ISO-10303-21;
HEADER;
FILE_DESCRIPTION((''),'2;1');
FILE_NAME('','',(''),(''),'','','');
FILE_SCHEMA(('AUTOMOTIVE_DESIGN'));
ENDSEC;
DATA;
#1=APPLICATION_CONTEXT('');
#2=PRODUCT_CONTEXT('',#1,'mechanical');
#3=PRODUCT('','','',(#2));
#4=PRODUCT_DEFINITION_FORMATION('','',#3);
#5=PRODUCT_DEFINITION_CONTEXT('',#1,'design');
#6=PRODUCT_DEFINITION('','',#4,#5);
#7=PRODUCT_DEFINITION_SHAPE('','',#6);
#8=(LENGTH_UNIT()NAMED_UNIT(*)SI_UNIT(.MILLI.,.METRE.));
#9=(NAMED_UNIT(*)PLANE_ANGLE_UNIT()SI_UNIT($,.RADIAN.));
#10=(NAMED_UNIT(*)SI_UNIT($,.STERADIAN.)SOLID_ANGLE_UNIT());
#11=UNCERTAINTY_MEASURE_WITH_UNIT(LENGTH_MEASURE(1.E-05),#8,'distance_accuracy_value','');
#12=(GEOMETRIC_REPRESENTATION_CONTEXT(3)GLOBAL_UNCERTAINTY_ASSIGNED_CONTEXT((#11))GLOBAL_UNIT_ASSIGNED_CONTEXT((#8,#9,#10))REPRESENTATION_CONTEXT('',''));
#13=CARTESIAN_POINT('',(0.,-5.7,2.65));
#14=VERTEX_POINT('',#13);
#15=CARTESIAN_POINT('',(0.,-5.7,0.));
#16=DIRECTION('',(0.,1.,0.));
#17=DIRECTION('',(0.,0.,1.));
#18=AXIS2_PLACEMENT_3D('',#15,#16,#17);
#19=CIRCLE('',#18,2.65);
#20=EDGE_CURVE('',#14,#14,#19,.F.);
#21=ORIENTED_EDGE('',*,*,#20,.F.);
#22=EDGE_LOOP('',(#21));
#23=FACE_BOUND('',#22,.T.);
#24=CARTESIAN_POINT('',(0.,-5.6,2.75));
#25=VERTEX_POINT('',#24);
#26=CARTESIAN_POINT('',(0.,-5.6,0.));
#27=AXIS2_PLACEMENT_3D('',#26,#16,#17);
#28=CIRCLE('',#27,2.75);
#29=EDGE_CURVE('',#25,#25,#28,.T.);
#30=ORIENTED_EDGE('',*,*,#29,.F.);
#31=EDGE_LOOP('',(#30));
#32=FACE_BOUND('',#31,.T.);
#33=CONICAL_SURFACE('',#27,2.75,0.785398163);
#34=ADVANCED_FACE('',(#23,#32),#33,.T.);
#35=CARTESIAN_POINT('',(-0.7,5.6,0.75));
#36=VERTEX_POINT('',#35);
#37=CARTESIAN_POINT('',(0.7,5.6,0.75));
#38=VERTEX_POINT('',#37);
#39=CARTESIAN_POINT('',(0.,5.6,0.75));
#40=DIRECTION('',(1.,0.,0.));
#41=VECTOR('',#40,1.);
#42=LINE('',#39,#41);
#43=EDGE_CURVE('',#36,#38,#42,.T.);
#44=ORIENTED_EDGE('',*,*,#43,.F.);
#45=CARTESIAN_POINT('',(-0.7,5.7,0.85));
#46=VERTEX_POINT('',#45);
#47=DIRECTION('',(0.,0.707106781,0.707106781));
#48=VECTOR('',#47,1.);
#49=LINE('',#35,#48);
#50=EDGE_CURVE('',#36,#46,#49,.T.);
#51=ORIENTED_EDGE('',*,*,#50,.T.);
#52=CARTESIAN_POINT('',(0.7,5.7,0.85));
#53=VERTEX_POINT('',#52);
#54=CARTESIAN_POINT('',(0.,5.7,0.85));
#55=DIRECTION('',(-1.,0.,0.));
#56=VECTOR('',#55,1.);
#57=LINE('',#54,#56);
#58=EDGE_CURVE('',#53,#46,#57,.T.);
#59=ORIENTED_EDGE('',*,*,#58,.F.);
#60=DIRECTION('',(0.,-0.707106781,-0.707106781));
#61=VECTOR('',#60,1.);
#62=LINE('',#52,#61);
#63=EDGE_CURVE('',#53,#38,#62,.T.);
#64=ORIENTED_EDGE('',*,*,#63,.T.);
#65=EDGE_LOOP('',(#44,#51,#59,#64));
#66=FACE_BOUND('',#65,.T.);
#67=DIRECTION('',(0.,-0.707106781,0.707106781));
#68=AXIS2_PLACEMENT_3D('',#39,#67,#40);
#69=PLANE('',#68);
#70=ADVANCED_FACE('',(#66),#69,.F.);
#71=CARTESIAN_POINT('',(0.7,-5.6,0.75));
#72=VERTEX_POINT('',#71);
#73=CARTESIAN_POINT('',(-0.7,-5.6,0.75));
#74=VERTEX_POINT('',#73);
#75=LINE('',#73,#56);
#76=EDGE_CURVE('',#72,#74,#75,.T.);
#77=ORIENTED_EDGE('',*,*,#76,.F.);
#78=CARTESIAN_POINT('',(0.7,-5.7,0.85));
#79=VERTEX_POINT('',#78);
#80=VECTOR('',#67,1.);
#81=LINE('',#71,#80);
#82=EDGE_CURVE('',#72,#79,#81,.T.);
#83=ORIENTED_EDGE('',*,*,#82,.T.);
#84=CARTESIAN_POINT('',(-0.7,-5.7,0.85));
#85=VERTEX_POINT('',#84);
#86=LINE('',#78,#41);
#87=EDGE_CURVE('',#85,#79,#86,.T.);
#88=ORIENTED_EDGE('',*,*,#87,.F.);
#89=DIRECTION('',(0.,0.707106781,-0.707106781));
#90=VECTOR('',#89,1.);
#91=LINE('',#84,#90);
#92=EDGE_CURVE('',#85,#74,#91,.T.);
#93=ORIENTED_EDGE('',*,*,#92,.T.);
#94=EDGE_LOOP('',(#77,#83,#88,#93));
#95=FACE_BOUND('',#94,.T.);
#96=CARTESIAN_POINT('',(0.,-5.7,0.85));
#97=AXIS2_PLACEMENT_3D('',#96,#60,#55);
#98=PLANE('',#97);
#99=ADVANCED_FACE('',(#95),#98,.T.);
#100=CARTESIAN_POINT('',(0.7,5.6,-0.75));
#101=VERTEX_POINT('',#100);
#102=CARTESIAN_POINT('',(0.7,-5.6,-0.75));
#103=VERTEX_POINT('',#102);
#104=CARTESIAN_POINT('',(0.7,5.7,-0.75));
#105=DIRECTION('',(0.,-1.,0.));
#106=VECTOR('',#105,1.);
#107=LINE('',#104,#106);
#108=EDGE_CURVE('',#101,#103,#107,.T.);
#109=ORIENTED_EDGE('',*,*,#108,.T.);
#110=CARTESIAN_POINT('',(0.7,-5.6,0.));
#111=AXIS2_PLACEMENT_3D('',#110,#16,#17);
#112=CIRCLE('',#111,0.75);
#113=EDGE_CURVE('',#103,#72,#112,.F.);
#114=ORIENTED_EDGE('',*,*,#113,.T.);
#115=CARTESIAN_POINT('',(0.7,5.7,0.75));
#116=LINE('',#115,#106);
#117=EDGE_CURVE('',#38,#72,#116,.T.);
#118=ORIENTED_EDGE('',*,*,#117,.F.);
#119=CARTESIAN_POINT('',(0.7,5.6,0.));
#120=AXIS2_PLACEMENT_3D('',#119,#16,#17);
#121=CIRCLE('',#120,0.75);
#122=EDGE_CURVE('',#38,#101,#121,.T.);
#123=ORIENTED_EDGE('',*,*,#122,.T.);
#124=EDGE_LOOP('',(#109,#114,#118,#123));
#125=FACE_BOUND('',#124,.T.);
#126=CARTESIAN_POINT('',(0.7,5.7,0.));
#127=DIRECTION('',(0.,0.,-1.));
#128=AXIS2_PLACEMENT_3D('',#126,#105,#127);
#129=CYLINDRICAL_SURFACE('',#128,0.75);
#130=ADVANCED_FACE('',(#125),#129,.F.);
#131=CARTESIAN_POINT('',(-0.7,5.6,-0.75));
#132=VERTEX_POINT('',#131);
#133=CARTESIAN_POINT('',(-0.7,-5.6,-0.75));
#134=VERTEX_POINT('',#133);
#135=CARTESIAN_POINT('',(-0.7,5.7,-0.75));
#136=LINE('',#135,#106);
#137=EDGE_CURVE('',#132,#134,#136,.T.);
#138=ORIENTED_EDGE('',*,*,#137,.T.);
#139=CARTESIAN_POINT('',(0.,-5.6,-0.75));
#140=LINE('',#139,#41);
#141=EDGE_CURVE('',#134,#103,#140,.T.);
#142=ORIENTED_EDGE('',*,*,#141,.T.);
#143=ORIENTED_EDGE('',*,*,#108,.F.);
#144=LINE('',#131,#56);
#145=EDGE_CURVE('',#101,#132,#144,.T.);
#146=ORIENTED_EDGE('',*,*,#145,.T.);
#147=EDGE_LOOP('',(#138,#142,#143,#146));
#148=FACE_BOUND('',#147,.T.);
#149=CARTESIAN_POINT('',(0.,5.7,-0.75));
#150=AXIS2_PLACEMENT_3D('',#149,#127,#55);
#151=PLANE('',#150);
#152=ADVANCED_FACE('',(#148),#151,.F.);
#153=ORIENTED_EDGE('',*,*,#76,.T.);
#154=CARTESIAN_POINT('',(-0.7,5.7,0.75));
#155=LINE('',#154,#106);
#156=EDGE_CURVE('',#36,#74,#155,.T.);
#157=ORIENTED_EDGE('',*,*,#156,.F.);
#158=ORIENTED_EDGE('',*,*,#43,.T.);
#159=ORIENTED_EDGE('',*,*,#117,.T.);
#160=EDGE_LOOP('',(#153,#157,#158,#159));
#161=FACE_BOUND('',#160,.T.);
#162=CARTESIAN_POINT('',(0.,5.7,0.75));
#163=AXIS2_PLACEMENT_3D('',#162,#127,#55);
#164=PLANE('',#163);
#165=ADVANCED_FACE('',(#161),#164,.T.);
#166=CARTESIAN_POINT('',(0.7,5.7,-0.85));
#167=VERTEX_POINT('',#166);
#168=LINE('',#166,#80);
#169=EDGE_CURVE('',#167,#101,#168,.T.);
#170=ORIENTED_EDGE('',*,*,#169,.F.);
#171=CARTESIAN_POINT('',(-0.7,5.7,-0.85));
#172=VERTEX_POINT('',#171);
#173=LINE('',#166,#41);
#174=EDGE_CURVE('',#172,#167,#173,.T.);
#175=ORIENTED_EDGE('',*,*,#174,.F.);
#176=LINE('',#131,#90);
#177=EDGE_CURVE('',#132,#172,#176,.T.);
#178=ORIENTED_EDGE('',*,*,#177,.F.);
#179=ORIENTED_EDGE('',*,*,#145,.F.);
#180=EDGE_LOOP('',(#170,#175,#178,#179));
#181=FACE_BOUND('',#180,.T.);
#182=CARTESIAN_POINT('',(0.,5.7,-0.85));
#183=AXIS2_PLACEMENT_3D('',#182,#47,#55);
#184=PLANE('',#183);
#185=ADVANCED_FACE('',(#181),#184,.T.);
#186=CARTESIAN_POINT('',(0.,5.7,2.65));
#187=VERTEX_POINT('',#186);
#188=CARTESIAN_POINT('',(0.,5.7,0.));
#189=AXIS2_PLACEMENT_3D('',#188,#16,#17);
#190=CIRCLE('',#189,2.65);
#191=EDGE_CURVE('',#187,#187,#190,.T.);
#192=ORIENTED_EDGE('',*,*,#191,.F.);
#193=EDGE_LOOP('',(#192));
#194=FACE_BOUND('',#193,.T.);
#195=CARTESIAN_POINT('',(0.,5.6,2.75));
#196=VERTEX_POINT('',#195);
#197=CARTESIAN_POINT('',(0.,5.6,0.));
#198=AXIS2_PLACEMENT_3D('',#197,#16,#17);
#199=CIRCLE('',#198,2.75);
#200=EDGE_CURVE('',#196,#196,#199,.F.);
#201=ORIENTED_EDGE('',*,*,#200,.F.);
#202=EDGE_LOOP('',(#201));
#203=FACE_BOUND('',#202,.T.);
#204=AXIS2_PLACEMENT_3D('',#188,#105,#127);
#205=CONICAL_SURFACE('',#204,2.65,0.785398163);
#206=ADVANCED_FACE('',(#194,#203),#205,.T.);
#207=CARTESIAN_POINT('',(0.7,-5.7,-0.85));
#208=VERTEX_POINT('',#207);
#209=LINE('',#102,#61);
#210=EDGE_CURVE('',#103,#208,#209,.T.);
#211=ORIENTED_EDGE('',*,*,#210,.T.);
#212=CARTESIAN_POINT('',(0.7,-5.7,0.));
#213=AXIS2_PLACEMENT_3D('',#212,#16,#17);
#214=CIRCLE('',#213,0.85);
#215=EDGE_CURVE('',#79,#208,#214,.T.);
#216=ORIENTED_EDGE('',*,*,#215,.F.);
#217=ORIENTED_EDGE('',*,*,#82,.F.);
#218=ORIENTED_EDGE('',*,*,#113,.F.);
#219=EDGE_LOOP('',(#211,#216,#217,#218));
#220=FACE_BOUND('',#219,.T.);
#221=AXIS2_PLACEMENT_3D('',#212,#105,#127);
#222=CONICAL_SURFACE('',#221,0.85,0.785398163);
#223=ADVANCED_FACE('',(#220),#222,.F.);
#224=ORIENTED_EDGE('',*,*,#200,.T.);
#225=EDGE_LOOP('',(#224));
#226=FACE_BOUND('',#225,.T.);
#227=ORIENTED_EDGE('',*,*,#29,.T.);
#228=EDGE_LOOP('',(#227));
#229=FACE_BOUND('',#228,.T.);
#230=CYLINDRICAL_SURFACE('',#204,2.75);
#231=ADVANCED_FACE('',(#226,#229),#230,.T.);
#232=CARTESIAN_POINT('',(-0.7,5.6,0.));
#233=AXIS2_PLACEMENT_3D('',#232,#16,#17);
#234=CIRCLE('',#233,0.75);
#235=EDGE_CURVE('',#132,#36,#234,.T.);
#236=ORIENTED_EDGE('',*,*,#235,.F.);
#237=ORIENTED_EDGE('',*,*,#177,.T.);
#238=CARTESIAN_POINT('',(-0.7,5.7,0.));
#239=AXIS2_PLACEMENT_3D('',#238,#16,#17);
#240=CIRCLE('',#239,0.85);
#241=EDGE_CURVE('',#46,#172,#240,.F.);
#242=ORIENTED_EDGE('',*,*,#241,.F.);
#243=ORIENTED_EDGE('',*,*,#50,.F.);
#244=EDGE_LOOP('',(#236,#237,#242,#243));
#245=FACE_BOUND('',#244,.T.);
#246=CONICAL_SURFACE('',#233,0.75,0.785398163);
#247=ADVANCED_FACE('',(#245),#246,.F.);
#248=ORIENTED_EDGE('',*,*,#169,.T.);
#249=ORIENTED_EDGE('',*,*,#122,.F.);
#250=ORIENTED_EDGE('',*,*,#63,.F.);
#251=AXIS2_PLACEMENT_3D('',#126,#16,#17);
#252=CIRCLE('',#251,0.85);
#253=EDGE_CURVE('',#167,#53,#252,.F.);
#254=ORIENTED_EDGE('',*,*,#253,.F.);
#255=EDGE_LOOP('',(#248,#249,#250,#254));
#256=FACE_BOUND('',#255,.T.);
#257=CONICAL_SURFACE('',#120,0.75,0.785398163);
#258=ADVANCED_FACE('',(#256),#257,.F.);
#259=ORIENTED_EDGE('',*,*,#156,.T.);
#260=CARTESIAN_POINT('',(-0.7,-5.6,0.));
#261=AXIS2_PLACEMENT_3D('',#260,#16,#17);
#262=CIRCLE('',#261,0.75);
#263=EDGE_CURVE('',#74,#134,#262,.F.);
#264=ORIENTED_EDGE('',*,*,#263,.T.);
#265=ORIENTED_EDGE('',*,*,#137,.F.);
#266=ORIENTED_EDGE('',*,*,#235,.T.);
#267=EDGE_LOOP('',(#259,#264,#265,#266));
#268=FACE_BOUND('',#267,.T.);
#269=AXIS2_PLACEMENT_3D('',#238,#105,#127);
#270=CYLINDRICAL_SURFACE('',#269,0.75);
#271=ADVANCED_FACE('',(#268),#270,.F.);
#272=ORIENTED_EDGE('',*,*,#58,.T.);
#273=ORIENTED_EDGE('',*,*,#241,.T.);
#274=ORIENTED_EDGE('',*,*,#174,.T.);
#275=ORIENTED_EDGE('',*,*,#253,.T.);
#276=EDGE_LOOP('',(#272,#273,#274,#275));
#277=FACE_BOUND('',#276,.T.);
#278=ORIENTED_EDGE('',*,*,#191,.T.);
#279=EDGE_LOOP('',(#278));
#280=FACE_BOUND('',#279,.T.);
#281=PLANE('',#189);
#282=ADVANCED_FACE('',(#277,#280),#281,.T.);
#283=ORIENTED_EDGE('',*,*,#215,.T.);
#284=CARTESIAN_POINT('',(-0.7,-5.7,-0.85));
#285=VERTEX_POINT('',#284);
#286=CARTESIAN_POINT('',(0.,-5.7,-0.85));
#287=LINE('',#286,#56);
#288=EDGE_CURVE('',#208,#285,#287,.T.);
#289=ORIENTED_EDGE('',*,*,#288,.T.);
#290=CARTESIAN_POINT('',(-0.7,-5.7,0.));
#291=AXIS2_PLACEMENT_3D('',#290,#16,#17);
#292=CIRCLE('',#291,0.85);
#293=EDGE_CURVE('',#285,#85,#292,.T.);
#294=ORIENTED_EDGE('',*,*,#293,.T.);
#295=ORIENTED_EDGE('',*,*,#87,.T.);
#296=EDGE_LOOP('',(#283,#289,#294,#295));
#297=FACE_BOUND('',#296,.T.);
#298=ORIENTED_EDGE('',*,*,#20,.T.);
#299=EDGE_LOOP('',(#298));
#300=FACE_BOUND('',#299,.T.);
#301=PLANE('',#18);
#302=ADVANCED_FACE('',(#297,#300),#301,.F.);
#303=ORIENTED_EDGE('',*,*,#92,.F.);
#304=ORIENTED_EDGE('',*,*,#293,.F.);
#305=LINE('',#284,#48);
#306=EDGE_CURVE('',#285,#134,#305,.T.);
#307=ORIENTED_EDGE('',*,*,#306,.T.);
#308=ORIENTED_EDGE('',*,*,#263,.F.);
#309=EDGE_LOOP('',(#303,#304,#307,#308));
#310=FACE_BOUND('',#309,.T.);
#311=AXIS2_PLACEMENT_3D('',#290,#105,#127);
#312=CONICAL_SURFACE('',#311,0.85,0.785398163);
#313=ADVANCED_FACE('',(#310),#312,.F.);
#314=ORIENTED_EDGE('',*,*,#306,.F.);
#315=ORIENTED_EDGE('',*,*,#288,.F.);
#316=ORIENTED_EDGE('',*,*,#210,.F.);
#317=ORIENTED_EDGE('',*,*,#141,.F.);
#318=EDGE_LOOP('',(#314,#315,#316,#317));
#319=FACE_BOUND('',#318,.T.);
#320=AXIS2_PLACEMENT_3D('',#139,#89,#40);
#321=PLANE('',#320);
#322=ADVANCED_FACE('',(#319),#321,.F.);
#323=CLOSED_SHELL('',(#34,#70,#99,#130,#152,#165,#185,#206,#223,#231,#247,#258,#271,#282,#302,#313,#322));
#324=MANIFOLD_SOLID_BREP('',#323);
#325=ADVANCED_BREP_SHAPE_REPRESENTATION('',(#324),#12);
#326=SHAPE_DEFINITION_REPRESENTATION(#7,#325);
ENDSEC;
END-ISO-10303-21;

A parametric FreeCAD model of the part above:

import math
import FreeCAD as App
import Part
import Sketcher
from FreeCAD import Vector


def edges_at(feature, points):
    """Names of the edges that pass closest to the given points."""
    edges = feature.Shape.Edges
    near = lambda p: min(range(len(edges)), key=lambda i: edges[i].distToShape(Part.Vertex(*p))[0])
    return sorted({f"Edge{near(p) + 1}" for p in points})

doc = App.newDocument("Part")
body = doc.addObject("PartDesign::Body", "Body")

# Sketch on XZ plane
sketch1 = body.newObject("Sketcher::SketchObject", "Sketch")
sketch1.AttachmentSupport = (doc.getObject("XZ_Plane"), [""])
sketch1.MapMode = "FlatFace"
sketch1.addGeometry(Part.Circle(Vector(0, 0, 0), Vector(0, 0, 1), 2.8), False)
sketch1.addGeometry(Part.ArcOfCircle(Part.Circle(Vector(0.7, 0, 0), Vector(0, 0, 1), 0.8), math.radians(0), math.radians(90)), False)
sketch1.addGeometry(Part.LineSegment(Vector(0.7, 0.8, 0), Vector(-0.7, 0.8, 0)), False)
sketch1.addGeometry(Part.ArcOfCircle(Part.Circle(Vector(-0.7, 0, 0), Vector(0, 0, 1), 0.8), math.radians(90), math.radians(180)), False)
sketch1.addGeometry(Part.ArcOfCircle(Part.Circle(Vector(-0.7, 0, 0), Vector(0, 0, 1), 0.8), math.radians(180), math.radians(270)), False)
sketch1.addGeometry(Part.LineSegment(Vector(-0.7, -0.8, 0), Vector(0.7, -0.8, 0)), False)
sketch1.addGeometry(Part.ArcOfCircle(Part.Circle(Vector(0.7, 0, 0), Vector(0, 0, 1), 0.8), math.radians(-90), math.radians(0)), False)
sketch1.addConstraint(Sketcher.Constraint("Tangent", 1, 2, 2, 1))
sketch1.addConstraint(Sketcher.Constraint("Tangent", 2, 2, 3, 1))
sketch1.addConstraint(Sketcher.Constraint("Tangent", 3, 2, 4, 1))
sketch1.addConstraint(Sketcher.Constraint("Tangent", 4, 2, 5, 1))
sketch1.addConstraint(Sketcher.Constraint("Tangent", 5, 2, 6, 1))
sketch1.addConstraint(Sketcher.Constraint("Tangent", 6, 2, 1, 1))
sketch1.addConstraint(Sketcher.Constraint("Horizontal", 2))
sketch1.addConstraint(Sketcher.Constraint("Horizontal", 5))
sketch1.addConstraint(Sketcher.Constraint("Coincident", 0, 3, -1, 1))
sketch1.addConstraint(Sketcher.Constraint("Equal", 1, 3))
sketch1.addConstraint(Sketcher.Constraint("Equal", 3, 4))
sketch1.addConstraint(Sketcher.Constraint("Symmetric", 1, 3, 3, 3, -1, 1))
sketch1.addConstraint(Sketcher.Constraint("PointOnObject", 3, 2, -1))
sketch1.addConstraint(Sketcher.Constraint("PointOnObject", 6, 2, -1))
sketch1.addConstraint(Sketcher.Constraint("Diameter", 0, 5.5))
sketch1.addConstraint(Sketcher.Constraint("Radius", 1, 0.75))
sketch1.addConstraint(Sketcher.Constraint("DistanceX", 2, 2, 2, 1, 1.4))
pad1 = body.newObject("PartDesign::Pad", "Pad")
pad1.Profile = sketch1
pad1.Length = 11.4
pad1.Midplane = True
doc.recompute()

chamfer = body.newObject("PartDesign::Chamfer", "Chamfer")
chamfer.Base = (pad1, edges_at(pad1, [
    (0, 5.7, 0.75),
    (-1.23, 5.7, 0.53),
    (-2.75, 5.7, 0),
    (0, 5.7, -0.75),
    (-2.75, -5.7, 0),
    (-1.23, -5.7, 0.53),
    (0, -5.7, 0.75),
    (1.23, -5.7, 0.53),
    (0, -5.7, -0.75),
    (1.23, 5.7, 0.53),
]))
chamfer.Size = 0.1

doc.recompute()
